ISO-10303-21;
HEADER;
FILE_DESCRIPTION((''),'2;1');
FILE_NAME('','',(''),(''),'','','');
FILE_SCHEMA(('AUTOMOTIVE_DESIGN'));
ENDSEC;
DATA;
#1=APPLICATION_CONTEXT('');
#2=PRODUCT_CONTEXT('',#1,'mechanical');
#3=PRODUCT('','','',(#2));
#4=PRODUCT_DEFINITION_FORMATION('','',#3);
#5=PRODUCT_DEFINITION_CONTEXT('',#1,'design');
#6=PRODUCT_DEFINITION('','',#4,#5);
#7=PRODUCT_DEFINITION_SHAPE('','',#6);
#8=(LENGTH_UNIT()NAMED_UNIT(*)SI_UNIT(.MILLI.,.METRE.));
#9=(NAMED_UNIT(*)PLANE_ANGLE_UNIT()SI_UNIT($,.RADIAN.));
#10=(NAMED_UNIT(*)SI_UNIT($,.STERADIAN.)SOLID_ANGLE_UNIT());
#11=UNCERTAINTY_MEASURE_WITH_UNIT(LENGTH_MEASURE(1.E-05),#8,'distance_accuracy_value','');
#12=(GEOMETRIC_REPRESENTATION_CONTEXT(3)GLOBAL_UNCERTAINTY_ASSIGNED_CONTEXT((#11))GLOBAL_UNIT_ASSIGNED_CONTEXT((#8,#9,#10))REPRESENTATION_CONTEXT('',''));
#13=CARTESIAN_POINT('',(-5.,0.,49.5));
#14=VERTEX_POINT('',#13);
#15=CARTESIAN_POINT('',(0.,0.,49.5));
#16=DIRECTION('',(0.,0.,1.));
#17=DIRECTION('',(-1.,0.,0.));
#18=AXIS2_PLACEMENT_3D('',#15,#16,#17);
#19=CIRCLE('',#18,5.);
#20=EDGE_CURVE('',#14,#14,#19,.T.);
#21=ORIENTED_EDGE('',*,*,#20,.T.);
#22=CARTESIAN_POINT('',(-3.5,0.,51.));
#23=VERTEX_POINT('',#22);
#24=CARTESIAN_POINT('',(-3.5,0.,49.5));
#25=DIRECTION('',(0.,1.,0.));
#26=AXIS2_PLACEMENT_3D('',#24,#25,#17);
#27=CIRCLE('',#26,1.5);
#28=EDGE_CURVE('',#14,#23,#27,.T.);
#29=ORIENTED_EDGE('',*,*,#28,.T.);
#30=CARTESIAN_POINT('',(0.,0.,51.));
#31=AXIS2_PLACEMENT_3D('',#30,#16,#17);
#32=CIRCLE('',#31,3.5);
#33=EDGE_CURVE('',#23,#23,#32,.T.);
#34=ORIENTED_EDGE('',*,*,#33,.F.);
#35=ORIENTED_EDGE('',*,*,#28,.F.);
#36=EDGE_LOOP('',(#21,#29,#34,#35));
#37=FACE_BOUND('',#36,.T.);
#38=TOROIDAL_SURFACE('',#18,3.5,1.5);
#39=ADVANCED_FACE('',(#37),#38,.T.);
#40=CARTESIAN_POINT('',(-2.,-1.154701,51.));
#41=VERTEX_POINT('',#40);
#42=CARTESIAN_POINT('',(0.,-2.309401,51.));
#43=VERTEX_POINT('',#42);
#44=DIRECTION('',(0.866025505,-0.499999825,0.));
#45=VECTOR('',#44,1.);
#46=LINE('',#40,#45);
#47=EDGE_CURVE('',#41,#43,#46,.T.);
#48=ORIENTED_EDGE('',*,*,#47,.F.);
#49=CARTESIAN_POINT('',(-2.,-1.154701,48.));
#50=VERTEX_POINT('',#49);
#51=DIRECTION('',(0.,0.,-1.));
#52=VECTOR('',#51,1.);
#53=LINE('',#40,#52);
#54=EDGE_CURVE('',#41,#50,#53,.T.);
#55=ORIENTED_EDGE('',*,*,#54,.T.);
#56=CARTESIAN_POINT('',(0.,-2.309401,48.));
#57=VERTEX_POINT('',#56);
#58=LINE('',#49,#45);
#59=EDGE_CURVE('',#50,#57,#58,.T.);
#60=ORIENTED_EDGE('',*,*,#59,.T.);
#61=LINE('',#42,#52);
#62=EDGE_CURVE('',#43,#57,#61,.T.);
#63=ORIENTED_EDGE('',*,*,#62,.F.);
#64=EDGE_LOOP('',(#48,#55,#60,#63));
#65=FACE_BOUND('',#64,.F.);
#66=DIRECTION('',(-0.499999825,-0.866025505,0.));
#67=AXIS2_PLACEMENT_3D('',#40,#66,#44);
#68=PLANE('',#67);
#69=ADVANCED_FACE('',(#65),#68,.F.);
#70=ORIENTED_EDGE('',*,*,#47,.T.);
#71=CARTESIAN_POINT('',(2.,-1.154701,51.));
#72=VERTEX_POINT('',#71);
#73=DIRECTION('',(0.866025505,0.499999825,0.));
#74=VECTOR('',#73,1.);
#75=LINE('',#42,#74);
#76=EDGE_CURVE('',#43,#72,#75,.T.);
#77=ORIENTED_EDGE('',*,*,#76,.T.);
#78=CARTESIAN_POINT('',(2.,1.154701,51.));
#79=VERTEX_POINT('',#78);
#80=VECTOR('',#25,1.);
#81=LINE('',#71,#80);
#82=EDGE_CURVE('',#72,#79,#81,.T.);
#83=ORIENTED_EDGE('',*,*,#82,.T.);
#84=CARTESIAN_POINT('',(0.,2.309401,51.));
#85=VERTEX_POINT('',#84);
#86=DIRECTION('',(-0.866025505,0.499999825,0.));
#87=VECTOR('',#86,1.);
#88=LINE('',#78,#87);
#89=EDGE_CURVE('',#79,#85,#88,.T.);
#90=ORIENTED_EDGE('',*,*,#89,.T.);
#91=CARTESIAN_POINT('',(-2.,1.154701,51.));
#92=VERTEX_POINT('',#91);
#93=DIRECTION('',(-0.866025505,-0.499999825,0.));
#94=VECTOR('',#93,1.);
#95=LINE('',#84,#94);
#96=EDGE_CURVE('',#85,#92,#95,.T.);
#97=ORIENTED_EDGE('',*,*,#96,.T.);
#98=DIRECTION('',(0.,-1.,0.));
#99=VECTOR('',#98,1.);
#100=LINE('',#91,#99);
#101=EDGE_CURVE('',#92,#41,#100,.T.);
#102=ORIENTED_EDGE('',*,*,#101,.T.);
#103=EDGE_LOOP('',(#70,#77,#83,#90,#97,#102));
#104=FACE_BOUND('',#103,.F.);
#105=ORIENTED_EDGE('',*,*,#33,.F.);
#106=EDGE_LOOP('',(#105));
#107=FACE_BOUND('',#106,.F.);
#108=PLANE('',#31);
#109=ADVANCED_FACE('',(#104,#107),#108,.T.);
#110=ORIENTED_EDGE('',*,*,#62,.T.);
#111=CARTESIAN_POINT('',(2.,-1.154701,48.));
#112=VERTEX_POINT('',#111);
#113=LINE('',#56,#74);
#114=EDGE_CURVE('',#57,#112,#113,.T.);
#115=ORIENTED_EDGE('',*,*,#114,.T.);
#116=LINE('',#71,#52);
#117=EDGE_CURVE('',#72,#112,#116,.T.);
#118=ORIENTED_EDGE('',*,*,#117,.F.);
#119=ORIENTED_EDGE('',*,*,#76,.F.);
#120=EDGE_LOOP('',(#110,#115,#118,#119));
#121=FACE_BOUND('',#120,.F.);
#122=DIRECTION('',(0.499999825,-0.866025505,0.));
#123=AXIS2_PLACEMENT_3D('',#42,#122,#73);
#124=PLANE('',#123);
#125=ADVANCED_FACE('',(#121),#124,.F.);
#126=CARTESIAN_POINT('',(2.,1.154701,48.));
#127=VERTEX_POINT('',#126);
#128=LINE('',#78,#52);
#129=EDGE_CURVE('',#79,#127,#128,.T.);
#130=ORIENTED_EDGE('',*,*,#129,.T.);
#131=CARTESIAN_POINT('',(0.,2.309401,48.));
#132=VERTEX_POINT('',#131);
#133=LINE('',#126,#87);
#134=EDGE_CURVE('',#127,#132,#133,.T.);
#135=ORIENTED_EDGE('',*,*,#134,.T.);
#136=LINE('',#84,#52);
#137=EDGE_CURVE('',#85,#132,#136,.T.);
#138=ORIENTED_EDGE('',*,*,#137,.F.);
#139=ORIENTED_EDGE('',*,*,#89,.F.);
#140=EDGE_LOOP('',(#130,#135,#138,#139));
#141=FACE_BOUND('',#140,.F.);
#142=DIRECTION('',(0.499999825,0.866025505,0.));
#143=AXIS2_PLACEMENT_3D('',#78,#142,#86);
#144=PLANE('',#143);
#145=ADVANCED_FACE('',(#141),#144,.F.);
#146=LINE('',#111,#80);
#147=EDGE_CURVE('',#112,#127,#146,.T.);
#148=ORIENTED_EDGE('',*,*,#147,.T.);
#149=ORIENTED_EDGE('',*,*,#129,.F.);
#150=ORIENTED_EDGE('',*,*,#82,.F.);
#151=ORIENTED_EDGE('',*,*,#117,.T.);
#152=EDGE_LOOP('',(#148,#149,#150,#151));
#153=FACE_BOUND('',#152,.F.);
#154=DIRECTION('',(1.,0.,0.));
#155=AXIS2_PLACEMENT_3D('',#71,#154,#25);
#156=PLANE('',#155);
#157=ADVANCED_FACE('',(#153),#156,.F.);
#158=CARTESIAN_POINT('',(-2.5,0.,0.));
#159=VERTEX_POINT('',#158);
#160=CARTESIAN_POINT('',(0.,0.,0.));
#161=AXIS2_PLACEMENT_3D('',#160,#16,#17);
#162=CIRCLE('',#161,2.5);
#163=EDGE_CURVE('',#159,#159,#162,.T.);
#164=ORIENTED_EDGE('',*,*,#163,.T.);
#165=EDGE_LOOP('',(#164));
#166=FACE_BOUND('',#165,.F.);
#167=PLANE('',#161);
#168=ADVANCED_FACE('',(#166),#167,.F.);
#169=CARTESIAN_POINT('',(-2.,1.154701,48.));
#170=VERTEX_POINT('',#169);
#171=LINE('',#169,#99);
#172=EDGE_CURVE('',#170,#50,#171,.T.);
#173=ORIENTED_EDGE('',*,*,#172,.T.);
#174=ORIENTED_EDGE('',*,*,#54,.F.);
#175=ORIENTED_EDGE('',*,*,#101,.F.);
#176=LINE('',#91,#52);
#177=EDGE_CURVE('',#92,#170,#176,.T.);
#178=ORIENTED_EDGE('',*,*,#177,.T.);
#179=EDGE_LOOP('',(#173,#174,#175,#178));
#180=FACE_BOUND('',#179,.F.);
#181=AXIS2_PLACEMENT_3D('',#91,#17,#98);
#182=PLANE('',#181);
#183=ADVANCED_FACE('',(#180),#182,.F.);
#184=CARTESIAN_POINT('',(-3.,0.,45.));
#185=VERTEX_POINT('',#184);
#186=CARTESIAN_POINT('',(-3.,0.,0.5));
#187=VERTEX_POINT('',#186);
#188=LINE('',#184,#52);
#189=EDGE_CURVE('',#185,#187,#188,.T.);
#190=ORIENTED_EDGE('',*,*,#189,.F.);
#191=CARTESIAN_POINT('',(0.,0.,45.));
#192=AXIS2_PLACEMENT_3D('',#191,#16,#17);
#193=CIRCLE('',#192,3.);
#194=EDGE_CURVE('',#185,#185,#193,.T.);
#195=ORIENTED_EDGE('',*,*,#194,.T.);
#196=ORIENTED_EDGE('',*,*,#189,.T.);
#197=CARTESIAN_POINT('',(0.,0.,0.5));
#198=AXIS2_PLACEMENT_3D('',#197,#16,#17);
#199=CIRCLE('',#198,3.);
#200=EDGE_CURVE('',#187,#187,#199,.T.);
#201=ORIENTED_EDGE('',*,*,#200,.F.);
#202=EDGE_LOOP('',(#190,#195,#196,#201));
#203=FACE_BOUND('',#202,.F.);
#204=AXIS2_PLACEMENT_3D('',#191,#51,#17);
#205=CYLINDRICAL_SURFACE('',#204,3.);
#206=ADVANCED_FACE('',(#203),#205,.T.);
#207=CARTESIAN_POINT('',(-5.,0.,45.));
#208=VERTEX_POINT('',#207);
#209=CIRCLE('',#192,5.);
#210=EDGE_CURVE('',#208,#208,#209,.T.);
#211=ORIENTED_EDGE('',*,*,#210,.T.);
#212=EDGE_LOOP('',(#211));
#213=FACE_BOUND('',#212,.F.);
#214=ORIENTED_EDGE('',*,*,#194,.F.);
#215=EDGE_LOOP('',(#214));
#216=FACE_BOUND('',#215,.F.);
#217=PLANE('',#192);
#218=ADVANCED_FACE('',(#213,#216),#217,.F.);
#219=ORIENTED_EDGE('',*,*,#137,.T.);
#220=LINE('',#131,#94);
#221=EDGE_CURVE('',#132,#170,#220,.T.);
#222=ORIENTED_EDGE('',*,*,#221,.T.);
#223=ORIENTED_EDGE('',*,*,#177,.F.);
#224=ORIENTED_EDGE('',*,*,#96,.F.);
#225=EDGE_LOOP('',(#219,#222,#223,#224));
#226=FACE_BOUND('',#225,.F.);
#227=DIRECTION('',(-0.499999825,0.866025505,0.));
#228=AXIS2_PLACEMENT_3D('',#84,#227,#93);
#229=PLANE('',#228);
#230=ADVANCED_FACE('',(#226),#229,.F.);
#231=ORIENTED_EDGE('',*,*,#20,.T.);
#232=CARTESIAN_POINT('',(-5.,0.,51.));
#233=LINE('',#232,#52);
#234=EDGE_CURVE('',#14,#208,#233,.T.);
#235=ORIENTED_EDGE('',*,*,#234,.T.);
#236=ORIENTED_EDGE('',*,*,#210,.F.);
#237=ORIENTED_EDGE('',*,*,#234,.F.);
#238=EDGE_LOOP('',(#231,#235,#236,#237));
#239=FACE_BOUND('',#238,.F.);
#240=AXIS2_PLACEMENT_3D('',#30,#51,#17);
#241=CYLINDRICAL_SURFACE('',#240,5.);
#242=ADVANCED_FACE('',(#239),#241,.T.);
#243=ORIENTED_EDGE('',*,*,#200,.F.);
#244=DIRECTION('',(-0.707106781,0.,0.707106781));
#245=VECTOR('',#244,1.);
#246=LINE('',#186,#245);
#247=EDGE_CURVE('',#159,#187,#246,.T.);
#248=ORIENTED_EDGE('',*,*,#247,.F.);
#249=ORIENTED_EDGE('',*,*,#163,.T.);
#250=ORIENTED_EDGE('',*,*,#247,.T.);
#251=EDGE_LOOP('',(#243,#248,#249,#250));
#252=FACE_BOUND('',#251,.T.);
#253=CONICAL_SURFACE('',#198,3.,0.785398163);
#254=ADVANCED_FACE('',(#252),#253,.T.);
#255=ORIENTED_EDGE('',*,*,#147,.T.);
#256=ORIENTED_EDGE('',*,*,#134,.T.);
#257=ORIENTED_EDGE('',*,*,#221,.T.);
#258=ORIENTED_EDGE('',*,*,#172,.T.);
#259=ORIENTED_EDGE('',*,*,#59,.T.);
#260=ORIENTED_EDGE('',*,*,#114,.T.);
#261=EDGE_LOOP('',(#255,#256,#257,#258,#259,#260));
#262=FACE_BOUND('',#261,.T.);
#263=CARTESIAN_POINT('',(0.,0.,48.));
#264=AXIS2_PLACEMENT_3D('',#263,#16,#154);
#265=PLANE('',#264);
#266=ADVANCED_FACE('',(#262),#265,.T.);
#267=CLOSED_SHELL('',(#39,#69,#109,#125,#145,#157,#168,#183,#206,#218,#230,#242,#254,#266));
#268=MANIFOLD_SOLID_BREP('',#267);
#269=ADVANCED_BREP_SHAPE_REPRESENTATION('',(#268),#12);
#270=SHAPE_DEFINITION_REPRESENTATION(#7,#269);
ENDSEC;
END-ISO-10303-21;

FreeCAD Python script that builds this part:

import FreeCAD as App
import Part
import Sketcher

V = App.Vector
Q = App.Units.Quantity


def edges_at(feature, points):
    """Names of the edges that pass closest to the given points."""
    edges = feature.Shape.Edges
    near = lambda p: min(range(len(edges)), key=lambda i: edges[i].distToShape(Part.Vertex(*p))[0])
    return sorted({f"Edge{near(p) + 1}" for p in points})

doc = App.newDocument("Part")
body = doc.addObject("PartDesign::Body", "Body")

# Sketch on XZ plane
sketch1 = doc.addObject("Sketcher::SketchObject", "Sketch")
body.addObject(sketch1)
sketch1.AttachmentSupport = (doc.XZ_Plane, [""])
sketch1.MapMode = "FlatFace"
sketch1.addGeometry([
    Part.LineSegment(V(-3, 0, 0), V(0, 0, 0)),  # 0
    Part.LineSegment(V(0, 0, 0), V(0, 51, 0)),  # 1
    Part.LineSegment(V(0, 51, 0), V(-5, 51, 0)),  # 2
    Part.LineSegment(V(-5, 51, 0), V(-5, 45, 0)),  # 3
    Part.LineSegment(V(-5, 45, 0), V(-3, 45, 0)),  # 4
    Part.LineSegment(V(-3, 45, 0), V(-3, 0, 0)),  # 5
], False)
sketch1.addConstraint([
    Sketcher.Constraint("Coincident", 0, 2, 1, 1),
    Sketcher.Constraint("Coincident", 1, 2, 2, 1),
    Sketcher.Constraint("Coincident", 2, 2, 3, 1),
    Sketcher.Constraint("Coincident", 3, 2, 4, 1),
    Sketcher.Constraint("Coincident", 4, 2, 5, 1),
    Sketcher.Constraint("Coincident", 5, 2, 0, 1),
    Sketcher.Constraint("Horizontal", 0),
    Sketcher.Constraint("Vertical", 1),
    Sketcher.Constraint("Horizontal", 2),
    Sketcher.Constraint("Vertical", 3),
    Sketcher.Constraint("Horizontal", 4),
    Sketcher.Constraint("Vertical", 5),
    Sketcher.Constraint("Coincident", 0, 2, -1, 1),
    Sketcher.Constraint("DistanceX", 0, 1, 0, 2, Q("3 mm")),
    Sketcher.Constraint("DistanceX", 2, 2, 2, 1, Q("5 mm")),
    Sketcher.Constraint("DistanceY", 1, 1, 1, 2, Q("51 mm")),
    Sketcher.Constraint("DistanceY", 3, 2, 3, 1, Q("6 mm")),
])
revolution = doc.addObject("PartDesign::Revolution", "Revolution")
body.addObject(revolution)
revolution.Profile = sketch1
revolution.ReferenceAxis = (sketch1, ["V_Axis"])
revolution.Angle = 360
doc.recompute()

chamfer = doc.addObject("PartDesign::Chamfer", "Chamfer")
body.addObject(chamfer)
chamfer.Base = (revolution, edges_at(revolution, [(3, 0, 0)]))
chamfer.Size = 0.5
doc.recompute()

fillet = doc.addObject("PartDesign::Fillet", "Fillet")
body.addObject(fillet)
fillet.Base = (chamfer, edges_at(chamfer, [(5, 0, 51)]))
fillet.Radius = 1.5

# Sketch on XY plane
sketch2 = doc.addObject("Sketcher::SketchObject", "Sketch001")
body.addObject(sketch2)
sketch2.AttachmentSupport = (doc.XY_Plane, [""])
sketch2.MapMode = "FlatFace"
sketch2.AttachmentOffset = App.Placement(V(0, 0, 51), App.Rotation())
sketch2.addGeometry([
    Part.LineSegment(V(-2, 1.2, 0), V(-2, -1.2, 0)),  # 0
    Part.LineSegment(V(-2, -1.2, 0), V(0, -2.3, 0)),  # 1
    Part.LineSegment(V(0, -2.3, 0), V(2, -1.2, 0)),  # 2
    Part.LineSegment(V(2, -1.2, 0), V(2, 1.2, 0)),  # 3
    Part.LineSegment(V(2, 1.2, 0), V(0, 2.3, 0)),  # 4
    Part.LineSegment(V(0, 2.3, 0), V(-2, 1.2, 0)),  # 5
], False)
sketch2.addConstraint([
    Sketcher.Constraint("Coincident", 0, 2, 1, 1),
    Sketcher.Constraint("Coincident", 1, 2, 2, 1),
    Sketcher.Constraint("Coincident", 2, 2, 3, 1),
    Sketcher.Constraint("Coincident", 3, 2, 4, 1),
    Sketcher.Constraint("Coincident", 4, 2, 5, 1),
    Sketcher.Constraint("Coincident", 5, 2, 0, 1),
    Sketcher.Constraint("Vertical", 0),
    Sketcher.Constraint("Vertical", 3),
    Sketcher.Constraint("Symmetric", 0, 2, 3, 2, -1, 1),
    Sketcher.Constraint("Symmetric", 1, 2, 4, 2, -1, 1),
    Sketcher.Constraint("PointOnObject", 1, 2, -2),
    Sketcher.Constraint("Parallel", 2, 5),
    Sketcher.Constraint("Horizontal", 0, 2, 2, 2),
    Sketcher.Constraint("Angle", 1, Q("-29.999988 deg")),
    Sketcher.Constraint("DistanceX", 0, 2, -1, 1, Q("2 mm")),
    Sketcher.Constraint("DistanceY", 0, 2, 0, 1, Q("2.309402 mm")),
])
pocket1 = doc.addObject("PartDesign::Pocket", "Pocket")
body.addObject(pocket1)
pocket1.Profile = sketch2
pocket1.Length = 3

doc.recompute()
